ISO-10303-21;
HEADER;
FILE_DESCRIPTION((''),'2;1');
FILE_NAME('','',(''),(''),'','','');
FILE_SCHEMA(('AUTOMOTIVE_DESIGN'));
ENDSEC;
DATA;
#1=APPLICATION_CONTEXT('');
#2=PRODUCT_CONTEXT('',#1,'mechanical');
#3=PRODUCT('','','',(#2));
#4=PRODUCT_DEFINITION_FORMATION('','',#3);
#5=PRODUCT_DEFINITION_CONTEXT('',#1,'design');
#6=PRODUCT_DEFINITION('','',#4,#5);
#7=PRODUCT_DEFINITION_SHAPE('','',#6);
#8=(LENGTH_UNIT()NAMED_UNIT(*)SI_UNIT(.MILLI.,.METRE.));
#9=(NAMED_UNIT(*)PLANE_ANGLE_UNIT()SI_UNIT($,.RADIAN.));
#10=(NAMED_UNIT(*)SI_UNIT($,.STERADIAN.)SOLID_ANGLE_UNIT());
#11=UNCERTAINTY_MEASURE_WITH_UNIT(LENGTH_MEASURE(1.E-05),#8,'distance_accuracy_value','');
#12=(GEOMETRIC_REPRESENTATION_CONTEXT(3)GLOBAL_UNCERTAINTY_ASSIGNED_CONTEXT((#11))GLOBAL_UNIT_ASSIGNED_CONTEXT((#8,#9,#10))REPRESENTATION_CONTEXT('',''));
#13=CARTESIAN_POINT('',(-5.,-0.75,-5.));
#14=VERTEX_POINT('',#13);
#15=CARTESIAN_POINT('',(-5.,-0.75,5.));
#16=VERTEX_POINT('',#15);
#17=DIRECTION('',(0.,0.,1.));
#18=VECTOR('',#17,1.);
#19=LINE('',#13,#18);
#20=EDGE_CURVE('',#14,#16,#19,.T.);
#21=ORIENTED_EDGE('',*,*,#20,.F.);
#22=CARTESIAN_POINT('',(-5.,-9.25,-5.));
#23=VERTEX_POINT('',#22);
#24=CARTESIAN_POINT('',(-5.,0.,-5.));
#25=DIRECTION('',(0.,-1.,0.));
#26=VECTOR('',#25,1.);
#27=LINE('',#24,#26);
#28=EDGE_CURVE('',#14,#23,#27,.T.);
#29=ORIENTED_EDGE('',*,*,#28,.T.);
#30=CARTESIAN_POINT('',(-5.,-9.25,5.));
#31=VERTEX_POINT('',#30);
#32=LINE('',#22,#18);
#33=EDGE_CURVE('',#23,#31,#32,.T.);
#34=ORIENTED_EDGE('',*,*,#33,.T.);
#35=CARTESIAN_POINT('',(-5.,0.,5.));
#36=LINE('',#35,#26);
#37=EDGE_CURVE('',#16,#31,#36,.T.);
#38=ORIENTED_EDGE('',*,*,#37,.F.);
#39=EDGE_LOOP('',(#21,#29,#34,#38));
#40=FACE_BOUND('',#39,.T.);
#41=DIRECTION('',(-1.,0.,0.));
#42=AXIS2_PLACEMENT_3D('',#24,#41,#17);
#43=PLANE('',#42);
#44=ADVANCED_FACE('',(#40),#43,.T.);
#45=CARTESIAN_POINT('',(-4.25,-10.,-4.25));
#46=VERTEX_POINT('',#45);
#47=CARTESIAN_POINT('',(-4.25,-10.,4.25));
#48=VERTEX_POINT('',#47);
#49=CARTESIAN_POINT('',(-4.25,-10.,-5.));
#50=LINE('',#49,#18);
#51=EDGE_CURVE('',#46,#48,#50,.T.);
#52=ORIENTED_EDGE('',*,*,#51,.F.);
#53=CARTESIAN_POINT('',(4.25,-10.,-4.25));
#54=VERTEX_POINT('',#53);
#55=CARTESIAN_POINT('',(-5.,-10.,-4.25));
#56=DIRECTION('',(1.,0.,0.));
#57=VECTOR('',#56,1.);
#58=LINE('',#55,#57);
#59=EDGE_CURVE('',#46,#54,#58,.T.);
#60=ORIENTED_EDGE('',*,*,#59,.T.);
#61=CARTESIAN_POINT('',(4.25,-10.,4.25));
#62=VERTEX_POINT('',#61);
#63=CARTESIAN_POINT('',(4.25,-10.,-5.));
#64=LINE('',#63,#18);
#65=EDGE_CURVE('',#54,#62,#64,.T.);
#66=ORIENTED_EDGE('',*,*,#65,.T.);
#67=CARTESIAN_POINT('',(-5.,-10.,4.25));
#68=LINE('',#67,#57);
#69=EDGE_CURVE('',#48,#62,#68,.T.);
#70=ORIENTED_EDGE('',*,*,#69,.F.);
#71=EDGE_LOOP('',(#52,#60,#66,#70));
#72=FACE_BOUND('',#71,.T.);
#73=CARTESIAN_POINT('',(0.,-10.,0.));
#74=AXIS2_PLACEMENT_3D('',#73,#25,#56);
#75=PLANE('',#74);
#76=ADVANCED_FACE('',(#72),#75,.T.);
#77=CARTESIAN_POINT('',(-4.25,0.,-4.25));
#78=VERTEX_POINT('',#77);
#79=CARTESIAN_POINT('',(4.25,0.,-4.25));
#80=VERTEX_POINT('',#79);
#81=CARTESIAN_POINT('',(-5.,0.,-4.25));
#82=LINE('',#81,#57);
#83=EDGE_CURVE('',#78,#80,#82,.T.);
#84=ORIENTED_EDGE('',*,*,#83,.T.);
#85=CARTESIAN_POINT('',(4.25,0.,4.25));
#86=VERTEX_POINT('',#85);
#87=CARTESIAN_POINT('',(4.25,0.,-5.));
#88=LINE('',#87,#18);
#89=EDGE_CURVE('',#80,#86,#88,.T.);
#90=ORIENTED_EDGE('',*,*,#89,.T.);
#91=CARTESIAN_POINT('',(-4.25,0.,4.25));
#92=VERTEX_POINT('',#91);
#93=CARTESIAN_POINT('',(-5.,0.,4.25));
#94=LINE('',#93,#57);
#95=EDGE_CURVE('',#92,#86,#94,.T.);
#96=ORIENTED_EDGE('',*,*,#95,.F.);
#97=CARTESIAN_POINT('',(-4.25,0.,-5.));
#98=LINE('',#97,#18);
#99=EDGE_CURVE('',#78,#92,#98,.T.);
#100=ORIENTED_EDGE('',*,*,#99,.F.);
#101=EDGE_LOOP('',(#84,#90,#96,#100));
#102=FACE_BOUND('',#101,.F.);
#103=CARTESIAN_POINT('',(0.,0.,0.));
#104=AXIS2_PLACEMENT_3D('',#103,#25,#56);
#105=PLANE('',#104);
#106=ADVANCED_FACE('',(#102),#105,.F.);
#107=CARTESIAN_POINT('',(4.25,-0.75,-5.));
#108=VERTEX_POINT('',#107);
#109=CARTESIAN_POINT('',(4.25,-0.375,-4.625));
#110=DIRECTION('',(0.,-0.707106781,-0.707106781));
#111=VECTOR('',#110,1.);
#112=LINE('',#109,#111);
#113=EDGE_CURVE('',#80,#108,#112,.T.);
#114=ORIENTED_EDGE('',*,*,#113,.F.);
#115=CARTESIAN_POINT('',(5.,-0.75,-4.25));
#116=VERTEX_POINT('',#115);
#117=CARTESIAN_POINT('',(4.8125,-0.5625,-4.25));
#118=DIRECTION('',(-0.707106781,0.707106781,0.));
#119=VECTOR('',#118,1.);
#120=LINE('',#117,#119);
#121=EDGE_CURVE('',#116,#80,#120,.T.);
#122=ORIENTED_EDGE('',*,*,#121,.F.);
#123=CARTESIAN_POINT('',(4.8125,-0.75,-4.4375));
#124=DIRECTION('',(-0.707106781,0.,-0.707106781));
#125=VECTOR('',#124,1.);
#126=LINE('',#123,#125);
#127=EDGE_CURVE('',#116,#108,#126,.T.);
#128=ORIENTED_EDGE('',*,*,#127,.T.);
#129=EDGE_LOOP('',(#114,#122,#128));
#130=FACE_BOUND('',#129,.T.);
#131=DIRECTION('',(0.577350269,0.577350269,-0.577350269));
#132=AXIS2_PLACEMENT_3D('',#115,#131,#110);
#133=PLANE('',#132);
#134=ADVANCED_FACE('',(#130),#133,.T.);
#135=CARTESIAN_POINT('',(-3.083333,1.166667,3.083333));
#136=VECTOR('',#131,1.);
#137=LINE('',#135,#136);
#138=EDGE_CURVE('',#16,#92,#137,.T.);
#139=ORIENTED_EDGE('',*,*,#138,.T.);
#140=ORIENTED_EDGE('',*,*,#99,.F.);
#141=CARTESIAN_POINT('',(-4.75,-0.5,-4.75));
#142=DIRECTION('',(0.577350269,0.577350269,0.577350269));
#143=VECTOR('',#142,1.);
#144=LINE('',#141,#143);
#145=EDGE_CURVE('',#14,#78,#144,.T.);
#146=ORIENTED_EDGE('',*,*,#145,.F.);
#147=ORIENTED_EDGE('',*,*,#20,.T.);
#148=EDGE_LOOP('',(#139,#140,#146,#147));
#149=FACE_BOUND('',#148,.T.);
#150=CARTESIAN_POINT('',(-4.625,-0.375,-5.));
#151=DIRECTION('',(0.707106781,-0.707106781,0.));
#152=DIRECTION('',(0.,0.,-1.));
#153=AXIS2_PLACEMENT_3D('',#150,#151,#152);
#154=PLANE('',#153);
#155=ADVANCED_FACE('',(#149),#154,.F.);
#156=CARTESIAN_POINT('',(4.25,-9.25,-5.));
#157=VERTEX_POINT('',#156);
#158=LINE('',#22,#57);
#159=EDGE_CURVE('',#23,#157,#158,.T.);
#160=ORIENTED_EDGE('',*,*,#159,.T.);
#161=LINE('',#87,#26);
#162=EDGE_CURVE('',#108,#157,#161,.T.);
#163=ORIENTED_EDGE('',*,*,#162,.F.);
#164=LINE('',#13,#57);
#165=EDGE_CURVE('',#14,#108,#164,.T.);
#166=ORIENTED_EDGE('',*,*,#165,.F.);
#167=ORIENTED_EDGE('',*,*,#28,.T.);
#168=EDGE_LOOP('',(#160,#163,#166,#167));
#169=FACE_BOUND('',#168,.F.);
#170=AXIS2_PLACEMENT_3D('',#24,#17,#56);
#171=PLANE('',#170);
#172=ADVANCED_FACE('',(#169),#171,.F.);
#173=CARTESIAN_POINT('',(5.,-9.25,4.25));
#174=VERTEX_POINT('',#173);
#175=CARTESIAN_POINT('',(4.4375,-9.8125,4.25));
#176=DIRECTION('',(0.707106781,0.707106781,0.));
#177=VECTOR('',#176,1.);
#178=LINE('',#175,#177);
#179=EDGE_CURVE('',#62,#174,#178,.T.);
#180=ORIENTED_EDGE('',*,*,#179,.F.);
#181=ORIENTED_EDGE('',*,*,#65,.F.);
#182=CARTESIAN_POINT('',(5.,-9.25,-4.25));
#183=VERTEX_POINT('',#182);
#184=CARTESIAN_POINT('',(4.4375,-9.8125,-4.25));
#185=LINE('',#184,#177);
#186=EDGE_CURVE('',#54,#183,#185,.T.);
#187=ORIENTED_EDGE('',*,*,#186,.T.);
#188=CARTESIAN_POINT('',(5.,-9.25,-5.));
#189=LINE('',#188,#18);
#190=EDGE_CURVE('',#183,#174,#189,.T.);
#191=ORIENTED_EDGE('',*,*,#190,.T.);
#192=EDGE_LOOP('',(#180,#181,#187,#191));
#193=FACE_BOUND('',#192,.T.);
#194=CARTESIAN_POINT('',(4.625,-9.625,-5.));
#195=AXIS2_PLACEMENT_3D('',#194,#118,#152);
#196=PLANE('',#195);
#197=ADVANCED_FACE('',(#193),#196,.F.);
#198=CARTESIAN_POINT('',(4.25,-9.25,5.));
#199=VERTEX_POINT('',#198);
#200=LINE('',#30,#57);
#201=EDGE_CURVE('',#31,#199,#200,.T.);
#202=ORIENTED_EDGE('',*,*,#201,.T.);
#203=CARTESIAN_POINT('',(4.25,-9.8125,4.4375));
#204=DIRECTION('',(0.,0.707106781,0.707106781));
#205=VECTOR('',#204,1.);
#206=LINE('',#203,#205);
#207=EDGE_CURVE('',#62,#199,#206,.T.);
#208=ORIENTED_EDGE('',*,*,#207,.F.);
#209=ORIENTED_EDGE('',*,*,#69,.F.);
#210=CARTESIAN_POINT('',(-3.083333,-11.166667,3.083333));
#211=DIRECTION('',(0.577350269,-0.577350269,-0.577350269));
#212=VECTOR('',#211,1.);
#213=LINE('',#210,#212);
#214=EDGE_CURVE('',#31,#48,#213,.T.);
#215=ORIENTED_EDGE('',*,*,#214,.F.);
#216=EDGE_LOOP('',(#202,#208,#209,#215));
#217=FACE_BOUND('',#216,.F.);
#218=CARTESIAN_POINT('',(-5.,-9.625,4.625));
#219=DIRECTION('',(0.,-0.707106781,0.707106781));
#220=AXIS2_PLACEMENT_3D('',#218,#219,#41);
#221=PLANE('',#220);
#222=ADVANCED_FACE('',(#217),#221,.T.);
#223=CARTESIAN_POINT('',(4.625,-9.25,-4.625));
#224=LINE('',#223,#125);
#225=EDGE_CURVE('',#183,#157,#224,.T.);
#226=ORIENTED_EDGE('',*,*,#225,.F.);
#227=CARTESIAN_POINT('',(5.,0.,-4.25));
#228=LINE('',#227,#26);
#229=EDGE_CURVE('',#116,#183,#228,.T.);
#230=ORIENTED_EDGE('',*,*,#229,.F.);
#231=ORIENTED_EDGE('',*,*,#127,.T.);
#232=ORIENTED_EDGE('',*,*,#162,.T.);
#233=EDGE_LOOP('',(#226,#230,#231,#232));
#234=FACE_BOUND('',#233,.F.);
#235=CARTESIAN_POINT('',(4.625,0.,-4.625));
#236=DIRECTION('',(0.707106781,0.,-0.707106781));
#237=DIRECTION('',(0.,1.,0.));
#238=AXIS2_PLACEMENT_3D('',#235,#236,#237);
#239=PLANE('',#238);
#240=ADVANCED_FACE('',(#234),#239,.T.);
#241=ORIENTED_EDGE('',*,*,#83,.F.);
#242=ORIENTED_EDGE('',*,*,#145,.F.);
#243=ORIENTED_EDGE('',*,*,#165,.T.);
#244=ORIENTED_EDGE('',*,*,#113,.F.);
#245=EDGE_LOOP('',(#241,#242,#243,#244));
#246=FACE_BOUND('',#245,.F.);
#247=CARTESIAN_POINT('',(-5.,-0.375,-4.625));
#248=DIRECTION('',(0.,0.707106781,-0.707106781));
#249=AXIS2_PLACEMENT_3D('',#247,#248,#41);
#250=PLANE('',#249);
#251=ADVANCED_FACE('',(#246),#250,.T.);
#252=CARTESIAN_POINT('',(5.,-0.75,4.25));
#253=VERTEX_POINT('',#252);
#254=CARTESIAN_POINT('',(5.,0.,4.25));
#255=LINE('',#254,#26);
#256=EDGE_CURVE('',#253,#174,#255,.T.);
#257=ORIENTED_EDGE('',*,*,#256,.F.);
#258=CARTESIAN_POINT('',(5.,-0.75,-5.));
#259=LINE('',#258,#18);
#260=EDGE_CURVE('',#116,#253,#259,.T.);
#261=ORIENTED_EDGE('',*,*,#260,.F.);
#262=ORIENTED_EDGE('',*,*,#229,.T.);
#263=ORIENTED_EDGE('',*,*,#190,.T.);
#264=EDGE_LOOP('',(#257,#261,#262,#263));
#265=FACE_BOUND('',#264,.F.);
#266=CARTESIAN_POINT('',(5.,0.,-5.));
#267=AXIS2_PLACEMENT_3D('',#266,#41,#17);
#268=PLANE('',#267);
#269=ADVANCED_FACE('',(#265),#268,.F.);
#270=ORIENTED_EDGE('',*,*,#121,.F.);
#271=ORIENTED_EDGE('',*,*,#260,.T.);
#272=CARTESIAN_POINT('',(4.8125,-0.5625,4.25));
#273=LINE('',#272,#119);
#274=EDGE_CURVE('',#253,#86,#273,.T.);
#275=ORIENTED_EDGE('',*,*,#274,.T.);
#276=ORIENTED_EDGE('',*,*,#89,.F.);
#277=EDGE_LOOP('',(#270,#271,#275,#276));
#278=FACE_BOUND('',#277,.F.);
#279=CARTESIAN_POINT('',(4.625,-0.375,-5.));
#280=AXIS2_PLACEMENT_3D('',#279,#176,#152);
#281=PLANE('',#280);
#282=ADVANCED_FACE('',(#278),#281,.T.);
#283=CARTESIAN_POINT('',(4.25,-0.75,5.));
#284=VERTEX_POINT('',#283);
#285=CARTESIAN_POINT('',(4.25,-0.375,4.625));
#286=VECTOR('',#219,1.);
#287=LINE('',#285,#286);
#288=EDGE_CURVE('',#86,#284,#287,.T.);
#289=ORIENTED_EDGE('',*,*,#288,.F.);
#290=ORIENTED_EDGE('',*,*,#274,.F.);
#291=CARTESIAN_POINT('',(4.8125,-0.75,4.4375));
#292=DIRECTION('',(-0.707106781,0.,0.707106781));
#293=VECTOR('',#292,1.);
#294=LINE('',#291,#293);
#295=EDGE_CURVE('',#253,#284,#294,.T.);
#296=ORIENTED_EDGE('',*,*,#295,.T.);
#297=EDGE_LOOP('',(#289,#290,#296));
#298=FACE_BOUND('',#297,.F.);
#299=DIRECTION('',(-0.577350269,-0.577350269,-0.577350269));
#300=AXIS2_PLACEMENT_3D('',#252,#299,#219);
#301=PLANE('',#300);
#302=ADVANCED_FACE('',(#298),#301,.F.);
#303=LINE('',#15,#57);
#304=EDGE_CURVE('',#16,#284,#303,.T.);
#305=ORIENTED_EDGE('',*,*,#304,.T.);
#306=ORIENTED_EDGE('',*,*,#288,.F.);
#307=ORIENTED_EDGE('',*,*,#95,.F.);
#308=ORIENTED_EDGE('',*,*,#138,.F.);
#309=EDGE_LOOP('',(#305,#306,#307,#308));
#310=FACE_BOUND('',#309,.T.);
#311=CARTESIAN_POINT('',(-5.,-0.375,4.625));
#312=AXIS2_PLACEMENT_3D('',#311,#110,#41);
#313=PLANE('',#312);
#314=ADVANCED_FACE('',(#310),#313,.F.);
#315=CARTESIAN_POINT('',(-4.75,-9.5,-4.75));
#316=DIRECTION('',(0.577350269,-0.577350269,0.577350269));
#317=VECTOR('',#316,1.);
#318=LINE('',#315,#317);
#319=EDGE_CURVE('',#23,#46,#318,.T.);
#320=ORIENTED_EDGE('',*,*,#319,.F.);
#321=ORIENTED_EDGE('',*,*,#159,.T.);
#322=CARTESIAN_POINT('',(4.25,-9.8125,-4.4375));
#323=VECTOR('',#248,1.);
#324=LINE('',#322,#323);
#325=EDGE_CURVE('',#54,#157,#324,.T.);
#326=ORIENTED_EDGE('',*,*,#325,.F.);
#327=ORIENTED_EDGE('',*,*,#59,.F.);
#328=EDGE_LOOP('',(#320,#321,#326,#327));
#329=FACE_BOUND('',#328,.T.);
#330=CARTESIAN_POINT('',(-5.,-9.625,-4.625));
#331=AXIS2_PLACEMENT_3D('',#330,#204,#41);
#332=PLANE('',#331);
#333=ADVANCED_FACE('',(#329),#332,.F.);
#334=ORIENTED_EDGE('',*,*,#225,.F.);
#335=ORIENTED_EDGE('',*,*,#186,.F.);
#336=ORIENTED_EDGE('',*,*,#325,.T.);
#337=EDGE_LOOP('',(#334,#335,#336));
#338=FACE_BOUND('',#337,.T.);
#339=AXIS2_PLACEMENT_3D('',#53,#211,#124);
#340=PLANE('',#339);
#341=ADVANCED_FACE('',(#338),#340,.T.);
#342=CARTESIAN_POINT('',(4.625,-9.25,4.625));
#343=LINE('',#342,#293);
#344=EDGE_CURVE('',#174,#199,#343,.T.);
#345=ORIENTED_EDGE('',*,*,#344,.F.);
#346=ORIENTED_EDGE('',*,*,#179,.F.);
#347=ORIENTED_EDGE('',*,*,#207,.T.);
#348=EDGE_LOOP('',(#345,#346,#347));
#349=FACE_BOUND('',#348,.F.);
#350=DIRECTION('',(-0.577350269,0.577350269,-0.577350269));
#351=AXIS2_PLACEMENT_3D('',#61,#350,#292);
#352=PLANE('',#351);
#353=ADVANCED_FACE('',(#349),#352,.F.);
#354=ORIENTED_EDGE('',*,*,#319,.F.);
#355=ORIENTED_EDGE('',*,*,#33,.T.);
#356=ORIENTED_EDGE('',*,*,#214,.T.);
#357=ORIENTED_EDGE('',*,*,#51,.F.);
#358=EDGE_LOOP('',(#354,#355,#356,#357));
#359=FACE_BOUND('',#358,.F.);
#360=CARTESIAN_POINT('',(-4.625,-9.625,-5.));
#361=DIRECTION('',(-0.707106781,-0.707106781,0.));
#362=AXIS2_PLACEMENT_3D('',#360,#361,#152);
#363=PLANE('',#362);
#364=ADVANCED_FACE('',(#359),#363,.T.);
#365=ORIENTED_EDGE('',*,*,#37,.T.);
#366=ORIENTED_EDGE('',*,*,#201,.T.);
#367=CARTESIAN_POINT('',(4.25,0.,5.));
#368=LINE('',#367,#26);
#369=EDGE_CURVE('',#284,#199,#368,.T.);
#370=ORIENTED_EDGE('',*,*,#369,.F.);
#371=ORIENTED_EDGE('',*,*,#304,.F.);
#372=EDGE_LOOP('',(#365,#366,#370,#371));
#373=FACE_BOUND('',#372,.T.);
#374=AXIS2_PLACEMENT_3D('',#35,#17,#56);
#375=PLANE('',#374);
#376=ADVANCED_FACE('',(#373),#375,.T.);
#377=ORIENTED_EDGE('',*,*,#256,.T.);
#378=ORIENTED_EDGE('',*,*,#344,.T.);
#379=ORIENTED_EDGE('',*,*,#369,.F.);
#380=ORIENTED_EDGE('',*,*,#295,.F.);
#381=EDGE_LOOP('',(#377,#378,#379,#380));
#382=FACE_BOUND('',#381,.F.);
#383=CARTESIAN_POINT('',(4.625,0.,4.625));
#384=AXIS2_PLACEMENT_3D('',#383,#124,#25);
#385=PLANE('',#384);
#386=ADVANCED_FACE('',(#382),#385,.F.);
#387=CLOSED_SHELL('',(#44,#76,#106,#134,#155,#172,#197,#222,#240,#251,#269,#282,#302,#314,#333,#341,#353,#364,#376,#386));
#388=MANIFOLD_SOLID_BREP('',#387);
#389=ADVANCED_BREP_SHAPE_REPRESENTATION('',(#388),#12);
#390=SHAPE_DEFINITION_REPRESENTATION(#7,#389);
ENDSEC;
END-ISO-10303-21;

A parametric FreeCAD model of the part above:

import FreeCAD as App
import Part
import Sketcher
from FreeCAD import Vector


def edges_at(feature, points):
    """Names of the edges that pass closest to the given points."""
    edges = feature.Shape.Edges
    near = lambda p: min(range(len(edges)), key=lambda i: edges[i].distToShape(Part.Vertex(*p))[0])
    return sorted({f"Edge{near(p) + 1}" for p in points})

doc = App.newDocument("Part")
body = doc.addObject("PartDesign::Body", "Body")

sketch1 = body.newObject("Sketcher::SketchObject", "Sketch")
sketch1.AttachmentSupport = (doc.getObject("XZ_Plane"), [""])
sketch1.MapMode = "FlatFace"
sketch1.addGeometry(Part.LineSegment(Vector(-5, 5, 0), Vector(-5, -5, 0)), False)
sketch1.addGeometry(Part.LineSegment(Vector(-5, -5, 0), Vector(5, -5, 0)), False)
sketch1.addGeometry(Part.LineSegment(Vector(5, -5, 0), Vector(5, 5, 0)), False)
sketch1.addGeometry(Part.LineSegment(Vector(5, 5, 0), Vector(-5, 5, 0)), False)
sketch1.addConstraint(Sketcher.Constraint("Coincident", 0, 2, 1, 1))
sketch1.addConstraint(Sketcher.Constraint("Coincident", 1, 2, 2, 1))
sketch1.addConstraint(Sketcher.Constraint("Coincident", 2, 2, 3, 1))
sketch1.addConstraint(Sketcher.Constraint("Coincident", 3, 2, 0, 1))
sketch1.addConstraint(Sketcher.Constraint("Vertical", 0))
sketch1.addConstraint(Sketcher.Constraint("Horizontal", 1))
sketch1.addConstraint(Sketcher.Constraint("Vertical", 2))
sketch1.addConstraint(Sketcher.Constraint("Horizontal", 3))
sketch1.addConstraint(Sketcher.Constraint("Symmetric", 0, 2, 2, 2, -1, 1))
sketch1.addConstraint(Sketcher.Constraint("Equal", 3, 0))
sketch1.addConstraint(Sketcher.Constraint("DistanceX", 1, 1, 1, 2, 10.0))
pad1 = body.newObject("PartDesign::Pad", "Pad")
pad1.Profile = sketch1
pad1.Length = 10
doc.recompute()

chamfer = body.newObject("PartDesign::Chamfer", "Chamfer")
chamfer.Base = (pad1, edges_at(pad1, [
    (0, 0, 5),
    (-5, 0, 0),
    (0, 0, -5),
    (5, 0, 0),
    (5, -5, -5),
    (5, -5, 5),
    (5, -10, 0),
    (0, -10, -5),
    (0, -10, 5),
    (-5, -10, 0),
]))
chamfer.Size = 0.75

doc.recompute()
